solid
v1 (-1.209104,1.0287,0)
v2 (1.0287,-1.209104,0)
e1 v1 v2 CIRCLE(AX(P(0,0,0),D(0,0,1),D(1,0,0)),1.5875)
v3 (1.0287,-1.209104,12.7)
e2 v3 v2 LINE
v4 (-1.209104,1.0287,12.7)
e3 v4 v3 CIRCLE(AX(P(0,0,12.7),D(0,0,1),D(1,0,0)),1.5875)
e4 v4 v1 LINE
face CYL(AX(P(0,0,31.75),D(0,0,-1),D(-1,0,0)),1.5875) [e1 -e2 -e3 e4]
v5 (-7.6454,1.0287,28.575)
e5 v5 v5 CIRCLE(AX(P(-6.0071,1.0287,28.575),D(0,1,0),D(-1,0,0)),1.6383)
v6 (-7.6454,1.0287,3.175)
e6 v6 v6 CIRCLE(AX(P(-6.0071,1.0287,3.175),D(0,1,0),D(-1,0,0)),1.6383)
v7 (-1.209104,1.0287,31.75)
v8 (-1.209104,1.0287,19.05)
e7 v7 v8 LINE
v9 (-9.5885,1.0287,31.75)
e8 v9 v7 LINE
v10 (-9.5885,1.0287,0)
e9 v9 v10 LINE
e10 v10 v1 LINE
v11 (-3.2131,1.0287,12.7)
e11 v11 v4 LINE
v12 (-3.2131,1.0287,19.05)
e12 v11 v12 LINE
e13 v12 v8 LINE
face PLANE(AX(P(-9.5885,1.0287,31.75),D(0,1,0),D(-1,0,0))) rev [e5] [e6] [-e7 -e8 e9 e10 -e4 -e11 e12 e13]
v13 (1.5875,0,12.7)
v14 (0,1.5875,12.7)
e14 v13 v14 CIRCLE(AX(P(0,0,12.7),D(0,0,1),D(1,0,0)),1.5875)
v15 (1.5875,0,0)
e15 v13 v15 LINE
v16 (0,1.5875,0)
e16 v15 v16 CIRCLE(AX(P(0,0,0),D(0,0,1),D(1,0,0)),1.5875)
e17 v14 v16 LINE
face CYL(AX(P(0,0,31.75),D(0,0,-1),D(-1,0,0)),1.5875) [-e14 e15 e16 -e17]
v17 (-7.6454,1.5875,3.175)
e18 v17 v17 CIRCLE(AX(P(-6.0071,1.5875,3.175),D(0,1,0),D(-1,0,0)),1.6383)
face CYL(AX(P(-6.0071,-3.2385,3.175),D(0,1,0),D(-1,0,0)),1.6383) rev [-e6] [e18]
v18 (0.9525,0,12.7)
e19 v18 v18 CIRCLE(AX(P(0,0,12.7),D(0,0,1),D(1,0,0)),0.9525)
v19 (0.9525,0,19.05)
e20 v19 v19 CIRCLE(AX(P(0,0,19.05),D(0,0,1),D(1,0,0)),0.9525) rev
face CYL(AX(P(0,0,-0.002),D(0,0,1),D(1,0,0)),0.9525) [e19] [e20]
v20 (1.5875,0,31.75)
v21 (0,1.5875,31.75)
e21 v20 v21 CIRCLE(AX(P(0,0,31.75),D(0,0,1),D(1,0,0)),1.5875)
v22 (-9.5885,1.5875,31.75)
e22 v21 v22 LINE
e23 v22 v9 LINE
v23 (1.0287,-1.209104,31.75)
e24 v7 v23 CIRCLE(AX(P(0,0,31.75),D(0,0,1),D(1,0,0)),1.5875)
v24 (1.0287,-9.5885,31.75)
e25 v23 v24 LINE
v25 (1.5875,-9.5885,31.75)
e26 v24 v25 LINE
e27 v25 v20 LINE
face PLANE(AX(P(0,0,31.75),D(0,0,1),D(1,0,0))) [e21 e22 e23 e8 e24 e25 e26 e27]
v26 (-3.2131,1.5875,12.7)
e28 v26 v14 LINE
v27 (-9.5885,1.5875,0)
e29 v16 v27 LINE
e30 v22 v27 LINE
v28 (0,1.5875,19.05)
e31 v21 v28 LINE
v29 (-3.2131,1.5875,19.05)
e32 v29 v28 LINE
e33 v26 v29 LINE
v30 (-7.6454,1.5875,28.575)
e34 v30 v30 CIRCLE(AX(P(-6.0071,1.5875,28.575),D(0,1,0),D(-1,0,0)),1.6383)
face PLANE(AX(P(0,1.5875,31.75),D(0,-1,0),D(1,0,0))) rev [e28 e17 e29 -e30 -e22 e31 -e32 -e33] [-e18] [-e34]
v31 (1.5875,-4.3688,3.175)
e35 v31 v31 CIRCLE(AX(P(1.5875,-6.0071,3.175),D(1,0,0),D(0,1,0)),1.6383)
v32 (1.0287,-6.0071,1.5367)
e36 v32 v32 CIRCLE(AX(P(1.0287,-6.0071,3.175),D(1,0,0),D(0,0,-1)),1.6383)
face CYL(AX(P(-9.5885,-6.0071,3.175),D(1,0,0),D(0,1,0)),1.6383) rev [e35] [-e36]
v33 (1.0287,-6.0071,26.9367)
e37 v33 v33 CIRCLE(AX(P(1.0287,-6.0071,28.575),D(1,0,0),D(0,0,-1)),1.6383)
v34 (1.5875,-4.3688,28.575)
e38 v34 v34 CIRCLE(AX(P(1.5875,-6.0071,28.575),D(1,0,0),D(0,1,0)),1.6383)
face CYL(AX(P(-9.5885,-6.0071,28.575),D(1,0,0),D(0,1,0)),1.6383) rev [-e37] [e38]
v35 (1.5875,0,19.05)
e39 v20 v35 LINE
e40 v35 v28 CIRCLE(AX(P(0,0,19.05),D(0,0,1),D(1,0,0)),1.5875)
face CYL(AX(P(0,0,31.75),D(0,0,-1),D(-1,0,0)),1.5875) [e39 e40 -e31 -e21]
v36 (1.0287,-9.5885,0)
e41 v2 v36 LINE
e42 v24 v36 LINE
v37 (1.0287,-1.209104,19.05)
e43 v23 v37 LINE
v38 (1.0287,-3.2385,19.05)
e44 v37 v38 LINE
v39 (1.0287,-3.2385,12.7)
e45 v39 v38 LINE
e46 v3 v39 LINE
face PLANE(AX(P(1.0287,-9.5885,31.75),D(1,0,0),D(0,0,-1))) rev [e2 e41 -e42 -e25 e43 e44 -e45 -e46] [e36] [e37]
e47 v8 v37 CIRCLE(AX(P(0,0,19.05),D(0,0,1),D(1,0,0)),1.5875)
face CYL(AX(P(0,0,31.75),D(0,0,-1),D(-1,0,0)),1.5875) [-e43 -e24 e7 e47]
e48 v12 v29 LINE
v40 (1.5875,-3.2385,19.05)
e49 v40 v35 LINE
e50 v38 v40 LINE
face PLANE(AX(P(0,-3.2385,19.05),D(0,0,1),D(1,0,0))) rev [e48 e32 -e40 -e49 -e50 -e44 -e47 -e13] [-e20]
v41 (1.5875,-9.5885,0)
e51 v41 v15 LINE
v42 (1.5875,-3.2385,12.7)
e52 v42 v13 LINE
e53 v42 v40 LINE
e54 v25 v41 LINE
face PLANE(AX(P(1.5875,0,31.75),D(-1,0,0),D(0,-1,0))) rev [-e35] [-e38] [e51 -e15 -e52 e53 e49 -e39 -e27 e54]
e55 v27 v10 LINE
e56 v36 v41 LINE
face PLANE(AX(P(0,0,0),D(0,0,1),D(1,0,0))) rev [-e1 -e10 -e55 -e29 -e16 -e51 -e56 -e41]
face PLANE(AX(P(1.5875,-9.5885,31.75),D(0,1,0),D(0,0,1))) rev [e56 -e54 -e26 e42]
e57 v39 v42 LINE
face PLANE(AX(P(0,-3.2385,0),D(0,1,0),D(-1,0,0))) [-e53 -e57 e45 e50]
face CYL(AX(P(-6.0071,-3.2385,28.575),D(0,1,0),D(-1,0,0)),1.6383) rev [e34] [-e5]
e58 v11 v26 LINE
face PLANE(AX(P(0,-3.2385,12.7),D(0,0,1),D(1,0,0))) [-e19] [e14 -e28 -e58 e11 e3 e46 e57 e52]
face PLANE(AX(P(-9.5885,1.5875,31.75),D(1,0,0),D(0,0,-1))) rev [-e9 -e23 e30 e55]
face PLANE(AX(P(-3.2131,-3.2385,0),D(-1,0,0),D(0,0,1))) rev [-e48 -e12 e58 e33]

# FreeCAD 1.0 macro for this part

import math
import FreeCAD as App
import Part
import Sketcher

V = App.Vector
Q = App.Units.Quantity


def add_polygon(sketch, points):
    """Adds a closed chain of lines whose ends are joined by coincident constraints."""
    first, n = sketch.GeometryCount, len(points)
    for a, b in zip(points, points[1:] + points[:1]):
        sketch.addGeometry(Part.LineSegment(App.Vector(*a, 0), App.Vector(*b, 0)), False)
    for i in range(n):
        sketch.addConstraint(Sketcher.Constraint("Coincident", first + i, 2, first + (i + 1) % n, 1))

doc = App.newDocument("Part")
params = doc.addObject("Spreadsheet::Sheet", "Params")
for row, (alias, value) in enumerate([
    ("sketch1_radius", "0.0625 in"),
    ("sketch1_width", "0.022 in"),
    ("pad1_length", "1.25 in"),
    ("sketch2_diameter", "0.129 in"),
    ("sketch2_height", "0.25 in"),
    ("sketch2_width", "0.189 in"),
    ("pocket1_length", "0.19 in"),
    ("sketch3_diameter", "0.129 in"),
    ("sketch4_diameter", "0.075 in"),
], start=1):
    params.set(f"A{row}", alias)
    params.set(f"B{row}", "=" + value)
    params.setAlias(f"B{row}", alias)

body = doc.addObject("PartDesign::Body", "Body")

sketch1 = body.newObject("Sketcher::SketchObject", "Sketch")
sketch1.AttachmentSupport = (doc.getObject("XY_Plane"), [""])
sketch1.MapMode = "FlatFace"
sketch1.addGeometry([
    Part.LineSegment(V(0, 1.6, 0), V(-9.6, 1.6, 0)),
    Part.LineSegment(V(-9.6, 1.6, 0), V(-9.6, 1, 0)),
    Part.LineSegment(V(-9.6, 1, 0), V(-1.2, 1, 0)),
    Part.ArcOfCircle(Part.Circle(V(0, 0, 0), V(0, 0, 1), 1.6), math.radians(140), math.radians(310)),
    Part.LineSegment(V(1, -1.2, 0), V(1, -9.6, 0)),
    Part.LineSegment(V(1, -9.6, 0), V(1.6, -9.6, 0)),
    Part.LineSegment(V(1.6, -9.6, 0), V(1.6, 0, 0)),
    Part.ArcOfCircle(Part.Circle(V(0, 0, 0), V(0, 0, 1), 1.6), math.radians(0), math.radians(90)),
], False)
sketch1.addConstraint([
    Sketcher.Constraint("Coincident", 0, 2, 1, 1),
    Sketcher.Constraint("Coincident", 1, 2, 2, 1),
    Sketcher.Constraint("Coincident", 2, 2, 3, 1),
    Sketcher.Constraint("Coincident", 3, 2, 4, 1),
    Sketcher.Constraint("Coincident", 4, 2, 5, 1),
    Sketcher.Constraint("Coincident", 5, 2, 6, 1),
    Sketcher.Constraint("Tangent", 6, 2, 7, 1),
    Sketcher.Constraint("Tangent", 7, 2, 0, 1),
    Sketcher.Constraint("Horizontal", 0),
    Sketcher.Constraint("Vertical", 1),
    Sketcher.Constraint("Horizontal", 2),
    Sketcher.Constraint("Vertical", 4),
    Sketcher.Constraint("Horizontal", 5),
    Sketcher.Constraint("Vertical", 6),
    Sketcher.Constraint("Coincident", 3, 3, -1, 1),
    Sketcher.Constraint("Coincident", 7, 3, -1, 1),
    Sketcher.Constraint("Equal", 3, 7),
    Sketcher.Constraint("Equal", 5, 1),
    Sketcher.Constraint("Equal", 2, 4),
    Sketcher.Constraint("Radius", 3, Q("0.0625 in")),
    Sketcher.Constraint("DistanceX", 5, 1, 5, 2, Q("0.022 in")),
    Sketcher.Constraint("DistanceX", 0, 2, 0, 1, Q("0.3775 in")),
])
sketch1.setExpression("Constraints[19]", "Params.sketch1_radius")
sketch1.setExpression("Constraints[20]", "Params.sketch1_width")
pad1 = body.newObject("PartDesign::Pad", "Pad")
pad1.Profile = sketch1
pad1.setExpression("Length", "Params.pad1_length")

sketch2 = body.newObject("Sketcher::SketchObject", "Sketch001")
sketch2.AttachmentSupport = (doc.getObject("XZ_Plane"), [""])
sketch2.MapMode = "FlatFace"
sketch2.AttachmentOffset = App.Placement(V(0, 0, -0.0625 * 25.4), App.Rotation())
sketch2.addGeometry(Part.Circle(V(-6, 28.6, 0), V(0, 0, 1), 1.6), False)
sketch2.addGeometry(Part.Circle(V(-6, 3.2, 0), V(0, 0, 1), 1.6), False)
add_polygon(sketch2, [(-3.2, 12.7), (-3.2, 19.1), (1.6, 19.1), (1.6, 12.7)])
sketch2.addConstraint([
    Sketcher.Constraint("Vertical", 2),
    Sketcher.Constraint("Horizontal", 3),
    Sketcher.Constraint("Vertical", 4),
    Sketcher.Constraint("Horizontal", 5),
    Sketcher.Constraint("Equal", 0, 1),
    Sketcher.Constraint("Vertical", 0, 3, 1, 3),
    Sketcher.Constraint("Diameter", 0, Q("0.129 in")),
    Sketcher.Constraint("DistanceY", 1, 3, 0, 3, Q("1 in")),
    Sketcher.Constraint("DistanceY", 2, 1, 2, 2, Q("0.25 in")),
    Sketcher.Constraint("DistanceY", -1, 1, 4, 2, Q("0.5 in")),
    Sketcher.Constraint("DistanceX", 3, 1, 3, 2, Q("0.189 in")),
    Sketcher.Constraint("DistanceX", 0, 3, 2, 2, Q("0.11 in")),
    Sketcher.Constraint("DistanceY", -1, 1, 0, 3, Q("1.125 in")),
    Sketcher.Constraint("DistanceX", -1, 1, 3, 2, Q("0.0625 in")),
])
sketch2.setExpression("Constraints[10]", "Params.sketch2_diameter")
sketch2.setExpression("Constraints[12]", "Params.sketch2_height")
sketch2.setExpression("Constraints[14]", "Params.sketch2_width")
pocket1 = body.newObject("PartDesign::Pocket", "Pocket")
pocket1.Profile = sketch2
pocket1.setExpression("Length", "Params.pocket1_length")
pocket1.Reversed = True

sketch3 = body.newObject("Sketcher::SketchObject", "Sketch002")
sketch3.AttachmentSupport = (doc.getObject("YZ_Plane"), [""])
sketch3.MapMode = "FlatFace"
sketch3.AttachmentOffset = App.Placement(V(0, 0, 0.0625 * 25.4), App.Rotation())
sketch3.addGeometry([
    Part.Circle(V(-6, 28.6, 0), V(0, 0, 1), 1.6),
    Part.Circle(V(-6, 3.2, 0), V(0, 0, 1), 1.6),
], False)
sketch3.addConstraint([
    Sketcher.Constraint("Equal", 0, 1),
    Sketcher.Constraint("Vertical", 0, 3, 1, 3),
    Sketcher.Constraint("Diameter", 0, Q("0.129 in")),
    Sketcher.Constraint("DistanceY", 1, 3, 0, 3, Q("1 in")),
    Sketcher.Constraint("DistanceY", -1, 1, 0, 3, Q("1.125 in")),
    Sketcher.Constraint("DistanceX", 0, 3, -1, 1, Q("0.2365 in")),
])
sketch3.setExpression("Constraints[2]", "Params.sketch3_diameter")
pocket2 = body.newObject("PartDesign::Pocket", "Pocket001")
pocket2.Profile = sketch3
pocket2.Type = "ThroughAll"

sketch4 = body.newObject("Sketcher::SketchObject", "Sketch003")
sketch4.AttachmentSupport = (doc.getObject("XY_Plane"), [""])
sketch4.MapMode = "FlatFace"
sketch4.AttachmentOffset = App.Placement(V(0, 0, 0.75 * 25.4), App.Rotation())
sketch4.addGeometry(Part.Circle(V(0, 0, 0), V(0, 0, 1), 1), False)
sketch4.addConstraint([
    Sketcher.Constraint("Coincident", 0, 3, -1, 1),
    Sketcher.Constraint("Diameter", 0, Q("0.075 in")),
])
sketch4.setExpression("Constraints[1]", "Params.sketch4_diameter")
pad2 = body.newObject("PartDesign::Pad", "Pad001")
pad2.Profile = sketch4
pad2.Type = "UpToFirst"
pad2.Reversed = True

doc.recompute()
